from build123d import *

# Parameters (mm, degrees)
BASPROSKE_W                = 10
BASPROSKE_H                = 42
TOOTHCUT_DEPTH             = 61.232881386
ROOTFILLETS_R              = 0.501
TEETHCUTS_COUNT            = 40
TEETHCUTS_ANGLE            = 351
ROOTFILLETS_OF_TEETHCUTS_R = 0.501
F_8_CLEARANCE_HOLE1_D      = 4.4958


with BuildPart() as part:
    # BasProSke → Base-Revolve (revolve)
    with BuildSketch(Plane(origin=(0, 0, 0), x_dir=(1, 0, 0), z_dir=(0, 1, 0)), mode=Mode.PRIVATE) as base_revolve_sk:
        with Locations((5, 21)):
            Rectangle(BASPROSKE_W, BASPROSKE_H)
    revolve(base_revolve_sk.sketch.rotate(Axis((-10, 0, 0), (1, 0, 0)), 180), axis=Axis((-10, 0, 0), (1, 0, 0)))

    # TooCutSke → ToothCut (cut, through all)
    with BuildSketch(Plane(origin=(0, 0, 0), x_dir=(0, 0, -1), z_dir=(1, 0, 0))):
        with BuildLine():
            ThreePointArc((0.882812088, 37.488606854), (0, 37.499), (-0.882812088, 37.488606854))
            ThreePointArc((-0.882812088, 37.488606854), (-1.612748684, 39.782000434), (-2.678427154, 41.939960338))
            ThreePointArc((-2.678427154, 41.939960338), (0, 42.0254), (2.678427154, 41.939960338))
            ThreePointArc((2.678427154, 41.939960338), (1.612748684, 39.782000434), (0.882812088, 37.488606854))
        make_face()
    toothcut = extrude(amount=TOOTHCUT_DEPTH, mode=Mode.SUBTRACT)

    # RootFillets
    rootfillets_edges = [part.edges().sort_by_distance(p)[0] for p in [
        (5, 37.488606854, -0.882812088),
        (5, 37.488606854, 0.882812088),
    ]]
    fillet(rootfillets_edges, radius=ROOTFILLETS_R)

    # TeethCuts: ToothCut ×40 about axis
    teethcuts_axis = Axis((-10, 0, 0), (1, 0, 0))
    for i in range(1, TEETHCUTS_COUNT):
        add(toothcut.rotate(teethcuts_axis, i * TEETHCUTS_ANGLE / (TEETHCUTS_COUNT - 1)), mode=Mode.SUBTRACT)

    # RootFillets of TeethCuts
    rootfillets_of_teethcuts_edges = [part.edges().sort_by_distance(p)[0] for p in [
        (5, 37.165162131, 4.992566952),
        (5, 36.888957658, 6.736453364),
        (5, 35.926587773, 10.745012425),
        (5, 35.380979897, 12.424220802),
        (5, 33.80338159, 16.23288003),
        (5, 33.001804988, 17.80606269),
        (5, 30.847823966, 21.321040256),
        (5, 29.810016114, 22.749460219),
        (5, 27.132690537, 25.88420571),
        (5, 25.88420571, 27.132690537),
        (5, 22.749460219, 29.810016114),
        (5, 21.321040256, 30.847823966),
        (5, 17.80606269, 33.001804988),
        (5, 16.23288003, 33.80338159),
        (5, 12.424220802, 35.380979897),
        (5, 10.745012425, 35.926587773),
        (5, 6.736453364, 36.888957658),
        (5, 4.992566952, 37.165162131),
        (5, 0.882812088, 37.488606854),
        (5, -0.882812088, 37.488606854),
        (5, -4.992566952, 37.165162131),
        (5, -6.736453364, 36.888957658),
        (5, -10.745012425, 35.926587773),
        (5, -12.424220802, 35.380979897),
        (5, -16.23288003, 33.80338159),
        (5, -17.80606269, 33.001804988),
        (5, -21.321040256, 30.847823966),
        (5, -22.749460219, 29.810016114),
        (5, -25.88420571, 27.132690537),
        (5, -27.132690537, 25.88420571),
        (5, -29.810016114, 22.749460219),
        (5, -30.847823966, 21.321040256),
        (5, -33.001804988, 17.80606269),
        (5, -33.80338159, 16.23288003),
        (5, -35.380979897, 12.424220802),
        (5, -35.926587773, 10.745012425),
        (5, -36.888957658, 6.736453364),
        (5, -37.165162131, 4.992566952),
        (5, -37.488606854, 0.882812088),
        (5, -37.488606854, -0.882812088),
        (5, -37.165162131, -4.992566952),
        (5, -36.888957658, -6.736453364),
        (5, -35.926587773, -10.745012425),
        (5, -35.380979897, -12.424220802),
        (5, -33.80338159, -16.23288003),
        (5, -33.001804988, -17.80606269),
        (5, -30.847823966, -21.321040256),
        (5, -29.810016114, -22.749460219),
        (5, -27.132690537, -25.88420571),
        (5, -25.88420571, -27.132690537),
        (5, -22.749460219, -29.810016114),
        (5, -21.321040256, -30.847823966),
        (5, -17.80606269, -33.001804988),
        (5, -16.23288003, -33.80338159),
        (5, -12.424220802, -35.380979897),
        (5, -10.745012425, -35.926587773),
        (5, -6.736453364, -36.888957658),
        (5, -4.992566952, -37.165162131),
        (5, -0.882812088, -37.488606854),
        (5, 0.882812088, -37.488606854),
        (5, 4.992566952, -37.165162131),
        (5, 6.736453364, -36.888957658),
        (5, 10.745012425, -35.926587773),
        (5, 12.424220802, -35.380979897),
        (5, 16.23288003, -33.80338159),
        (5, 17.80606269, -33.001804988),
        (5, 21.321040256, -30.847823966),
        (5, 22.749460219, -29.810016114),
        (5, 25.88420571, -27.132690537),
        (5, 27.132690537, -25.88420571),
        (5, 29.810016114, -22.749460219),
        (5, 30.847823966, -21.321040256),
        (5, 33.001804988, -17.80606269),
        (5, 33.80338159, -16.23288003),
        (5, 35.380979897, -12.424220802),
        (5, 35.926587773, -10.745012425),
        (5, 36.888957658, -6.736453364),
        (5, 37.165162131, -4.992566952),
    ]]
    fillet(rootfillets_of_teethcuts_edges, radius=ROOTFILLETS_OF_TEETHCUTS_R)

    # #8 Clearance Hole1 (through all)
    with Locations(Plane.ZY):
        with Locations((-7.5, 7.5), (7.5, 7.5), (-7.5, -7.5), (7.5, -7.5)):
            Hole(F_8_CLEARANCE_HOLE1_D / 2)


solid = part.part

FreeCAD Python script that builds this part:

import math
import FreeCAD as App
import Part
import Sketcher
from FreeCAD import Vector


def edges_at(feature, points):
    """Names of the edges that pass closest to the given points."""
    edges = feature.Shape.Edges
    near = lambda p: min(range(len(edges)), key=lambda i: edges[i].distToShape(Part.Vertex(*p))[0])
    return sorted({f"Edge{near(p) + 1}" for p in points})

doc = App.newDocument("Part")
body = doc.addObject("PartDesign::Body", "Body")

# Sketch on XZ plane
sketch1 = doc.addObject("Sketcher::SketchObject", "Sketch")
body.addObject(sketch1)
sketch1.AttachmentSupport = (doc.XZ_Plane, [""])
sketch1.MapMode = "FlatFace"
sketch1.addGeometry(Part.LineSegment(Vector(0, -42, 0), Vector(0, 0, 0)), False)
sketch1.addGeometry(Part.LineSegment(Vector(0, 0, 0), Vector(10, 0, 0)), False)
sketch1.addGeometry(Part.LineSegment(Vector(10, 0, 0), Vector(10, -42, 0)), False)
sketch1.addGeometry(Part.LineSegment(Vector(10, -42, 0), Vector(0, -42, 0)), False)
sketch1.addConstraint(Sketcher.Constraint("Coincident", 0, 2, 1, 1))
sketch1.addConstraint(Sketcher.Constraint("Coincident", 1, 2, 2, 1))
sketch1.addConstraint(Sketcher.Constraint("Coincident", 2, 2, 3, 1))
sketch1.addConstraint(Sketcher.Constraint("Coincident", 3, 2, 0, 1))
sketch1.addConstraint(Sketcher.Constraint("Vertical", 0))
sketch1.addConstraint(Sketcher.Constraint("Horizontal", 1))
sketch1.addConstraint(Sketcher.Constraint("Vertical", 2))
sketch1.addConstraint(Sketcher.Constraint("Horizontal", 3))
sketch1.addConstraint(Sketcher.Constraint("Coincident", 0, 2, -1, 1))
sketch1.addConstraint(Sketcher.Constraint("DistanceX", 1, 1, 1, 2, 10.0))
sketch1.addConstraint(Sketcher.Constraint("DistanceY", 0, 1, 0, 2, 42.0))
revolution = doc.addObject("PartDesign::Revolution", "Revolution")
body.addObject(revolution)
revolution.Profile = sketch1
revolution.ReferenceAxis = (sketch1, ["H_Axis"])
revolution.Angle = 360

# Sketch on YZ plane
sketch2 = doc.addObject("Sketcher::SketchObject", "Sketch001")
body.addObject(sketch2)
sketch2.AttachmentSupport = (doc.YZ_Plane, [""])
sketch2.MapMode = "FlatFace"
sketch2.addGeometry(Part.ArcOfCircle(Part.Circle(Vector(0, 0, 0), Vector(0, 0, 1), 37.5), math.radians(-1.35), math.radians(1.35)), False)
sketch2.addGeometry(Part.ArcOfCircle(Part.Circle(Vector(33.8, -16.5, 0), Vector(0, 0, 1), 16), math.radians(59.4), math.radians(76.66)), False)
sketch2.addGeometry(Part.ArcOfCircle(Part.Circle(Vector(0, 0, 0), Vector(0, 0, 1), 42), math.radians(-3.65), math.radians(3.65)), False)
sketch2.addGeometry(Part.ArcOfCircle(Part.Circle(Vector(33.8, 16.5, 0), Vector(0, 0, 1), 16), math.radians(-76.66), math.radians(-59.4)), False)
sketch2.addConstraint(Sketcher.Constraint("Coincident", 0, 1, 1, 2))
sketch2.addConstraint(Sketcher.Constraint("Coincident", 1, 1, 2, 1))
sketch2.addConstraint(Sketcher.Constraint("Coincident", 2, 2, 3, 2))
sketch2.addConstraint(Sketcher.Constraint("Coincident", 3, 1, 0, 2))
sketch2.addConstraint(Sketcher.Constraint("Coincident", 0, 3, -1, 1))
sketch2.addConstraint(Sketcher.Constraint("Coincident", 2, 3, -1, 1))
sketch2.addConstraint(Sketcher.Constraint("Equal", 1, 3))
sketch2.addConstraint(Sketcher.Constraint("Symmetric", 1, 3, 3, 3, -1))
sketch2.addConstraint(Sketcher.Constraint("Radius", 1, 16.0))
sketch2.addConstraint(Sketcher.Constraint("Radius", 0, 37.499002))
sketch2.addConstraint(Sketcher.Constraint("Radius", 2, 42.0254))
sketch2.addConstraint(Sketcher.Constraint("DistanceY", 0, 1, 3, 3, 17.333798))
sketch2.addConstraint(Sketcher.Constraint("DistanceX", 1, 3, 1, 1, 8.143502))
pocket1 = doc.addObject("PartDesign::Pocket", "Pocket")
body.addObject(pocket1)
pocket1.Profile = sketch2
pocket1.Type = "ThroughAll"
pocket1.Reversed = True
doc.recompute()

fillet = doc.addObject("PartDesign::Fillet", "Fillet")
body.addObject(fillet)
fillet.Base = (pocket1, edges_at(pocket1, [(5, 37.489, -0.883), (5, 37.489, 0.883)]))
fillet.Radius = 0.501
doc.recompute()

polarpattern = doc.addObject("PartDesign::PolarPattern", "PolarPattern")
body.addObject(polarpattern)
polarpattern.Originals = [pocket1]
polarpattern.Axis = (doc.X_Axis, [""])
polarpattern.Angle = 360
polarpattern.Occurrences = 40
body.Tip = polarpattern
doc.recompute()

fillet2 = doc.addObject("PartDesign::Fillet", "Fillet001")
body.addObject(fillet2)
fillet2.Base = (polarpattern, edges_at(polarpattern, [
    (5, 37.165, 4.993),
    (5, 36.889, 6.736),
    (5, 35.927, 10.745),
    (5, 35.381, 12.424),
    (5, 33.803, 16.233),
    (5, 33.002, 17.806),
    (5, 30.848, 21.321),
    (5, 29.81, 22.749),
    (5, 27.133, 25.884),
    (5, 25.884, 27.133),
    (5, 22.749, 29.81),
    (5, 21.321, 30.848),
    (5, 17.806, 33.002),
    (5, 16.233, 33.803),
    (5, 12.424, 35.381),
    (5, 10.745, 35.927),
    (5, 6.736, 36.889),
    (5, 4.993, 37.165),
    (5, 0.883, 37.489),
    (5, -0.883, 37.489),
    (5, -4.993, 37.165),
    (5, -6.736, 36.889),
    (5, -10.745, 35.927),
    (5, -12.424, 35.381),
    (5, -16.233, 33.803),
    (5, -17.806, 33.002),
    (5, -21.321, 30.848),
    (5, -22.749, 29.81),
    (5, -25.884, 27.133),
    (5, -27.133, 25.884),
    (5, -29.81, 22.749),
    (5, -30.848, 21.321),
    (5, -33.002, 17.806),
    (5, -33.803, 16.233),
    (5, -35.381, 12.424),
    (5, -35.927, 10.745),
    (5, -36.889, 6.736),
    (5, -37.165, 4.993),
    (5, -37.489, 0.883),
    (5, -37.489, -0.883),
    (5, -37.165, -4.993),
    (5, -36.889, -6.736),
    (5, -35.927, -10.745),
    (5, -35.381, -12.424),
    (5, -33.803, -16.233),
    (5, -33.002, -17.806),
    (5, -30.848, -21.321),
    (5, -29.81, -22.749),
    (5, -27.133, -25.884),
    (5, -25.884, -27.133),
    (5, -22.749, -29.81),
    (5, -21.321, -30.848),
    (5, -17.806, -33.002),
    (5, -16.233, -33.803),
    (5, -12.424, -35.381),
    (5, -10.745, -35.927),
    (5, -6.736, -36.889),
    (5, -4.993, -37.165),
    (5, -0.883, -37.489),
    (5, 0.883, -37.489),
    (5, 4.993, -37.165),
    (5, 6.736, -36.889),
    (5, 10.745, -35.927),
    (5, 12.424, -35.381),
    (5, 16.233, -33.803),
    (5, 17.806, -33.002),
    (5, 21.321, -30.848),
    (5, 22.749, -29.81),
    (5, 25.884, -27.133),
    (5, 27.133, -25.884),
    (5, 29.81, -22.749),
    (5, 30.848, -21.321),
    (5, 33.002, -17.806),
    (5, 33.803, -16.233),
    (5, 35.381, -12.424),
    (5, 35.927, -10.745),
    (5, 36.889, -6.736),
    (5, 37.165, -4.993),
]))
fillet2.Radius = 0.501

# Sketch on YZ plane
sketch3 = doc.addObject("Sketcher::SketchObject", "Sketch002")
body.addObject(sketch3)
sketch3.AttachmentSupport = (doc.YZ_Plane, [""])
sketch3.MapMode = "FlatFace"
sketch3.addGeometry(Part.Circle(Vector(7.5, -7.5, 0), Vector(0, 0, 1), 2.2), False)
sketch3.addGeometry(Part.Circle(Vector(7.5, 7.5, 0), Vector(0, 0, 1), 2.2), False)
sketch3.addGeometry(Part.Circle(Vector(-7.5, -7.5, 0), Vector(0, 0, 1), 2.2), False)
sketch3.addGeometry(Part.Circle(Vector(-7.5, 7.5, 0), Vector(0, 0, 1), 2.2), False)
sketch3.addConstraint(Sketcher.Constraint("Equal", 0, 1))
sketch3.addConstraint(Sketcher.Constraint("Equal", 1, 2))
sketch3.addConstraint(Sketcher.Constraint("Equal", 2, 3))
sketch3.addConstraint(Sketcher.Constraint("Symmetric", 1, 3, 2, 3, -1, 1))
sketch3.addConstraint(Sketcher.Constraint("Symmetric", 0, 3, 3, 3, -1, 1))
sketch3.addConstraint(Sketcher.Constraint("Symmetric", 0, 3, 2, 3, -2))
sketch3.addConstraint(Sketcher.Constraint("DistanceY", 0, 3, 1, 3, 15.0))
sketch3.addConstraint(Sketcher.Constraint("DistanceX", 2, 3, 0, 3, 15.0))
sketch3.addConstraint(Sketcher.Constraint("Diameter", 0, 4.4958))
doc.recompute()
hole = doc.addObject("PartDesign::Hole", "Hole")
body.addObject(hole)
hole.Profile = sketch3
hole.ThreadType = "None"
hole.Diameter = 4.4958
hole.DepthType = "ThroughAll"
hole.Reversed = True

doc.recompute()
